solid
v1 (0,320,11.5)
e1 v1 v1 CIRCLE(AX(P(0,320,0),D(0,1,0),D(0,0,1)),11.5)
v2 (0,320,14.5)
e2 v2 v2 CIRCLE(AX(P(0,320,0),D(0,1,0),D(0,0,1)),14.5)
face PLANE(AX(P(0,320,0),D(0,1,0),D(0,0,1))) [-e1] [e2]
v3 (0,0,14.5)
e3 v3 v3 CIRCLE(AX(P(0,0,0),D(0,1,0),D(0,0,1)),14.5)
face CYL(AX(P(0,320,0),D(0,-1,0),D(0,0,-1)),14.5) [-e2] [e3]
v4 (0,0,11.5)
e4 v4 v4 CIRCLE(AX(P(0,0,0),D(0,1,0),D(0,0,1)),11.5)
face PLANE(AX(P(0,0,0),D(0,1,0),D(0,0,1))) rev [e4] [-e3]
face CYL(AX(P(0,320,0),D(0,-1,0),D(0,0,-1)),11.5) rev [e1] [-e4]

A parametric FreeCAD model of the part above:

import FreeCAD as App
import Part
import Sketcher
from FreeCAD import Vector


def faces_at(feature, points):
    """Names of the faces that lie closest to the given points."""
    faces = feature.Shape.Faces
    near = lambda p: min(range(len(faces)), key=lambda i: faces[i].distToShape(Part.Vertex(*p))[0])
    return sorted({f"Face{near(p) + 1}" for p in points})

doc = App.newDocument("Part")
body = doc.addObject("PartDesign::Body", "Body")

# Sketch on XZ plane
sketch1 = body.newObject("Sketcher::SketchObject", "Sketch")
sketch1.AttachmentSupport = (doc.getObject("XZ_Plane"), [""])
sketch1.MapMode = "FlatFace"
sketch1.addGeometry(Part.Circle(Vector(0, 0, 0), Vector(0, 0, 1), 14), False)
sketch1.addConstraint(Sketcher.Constraint("Coincident", 0, 3, -1, 1))
sketch1.addConstraint(Sketcher.Constraint("Diameter", 0, 29.0))
pad1 = body.newObject("PartDesign::Pad", "Pad")
pad1.Profile = sketch1
pad1.Length = 320
pad1.Reversed = True
doc.recompute()

thickness = body.newObject("PartDesign::Thickness", "Thickness")
thickness.Base = (pad1, faces_at(pad1, [(0, 320, 0), (0, 0, 0)]))
thickness.Value = 3
thickness.Reversed = True
thickness.Join = "Intersection"

doc.recompute()
